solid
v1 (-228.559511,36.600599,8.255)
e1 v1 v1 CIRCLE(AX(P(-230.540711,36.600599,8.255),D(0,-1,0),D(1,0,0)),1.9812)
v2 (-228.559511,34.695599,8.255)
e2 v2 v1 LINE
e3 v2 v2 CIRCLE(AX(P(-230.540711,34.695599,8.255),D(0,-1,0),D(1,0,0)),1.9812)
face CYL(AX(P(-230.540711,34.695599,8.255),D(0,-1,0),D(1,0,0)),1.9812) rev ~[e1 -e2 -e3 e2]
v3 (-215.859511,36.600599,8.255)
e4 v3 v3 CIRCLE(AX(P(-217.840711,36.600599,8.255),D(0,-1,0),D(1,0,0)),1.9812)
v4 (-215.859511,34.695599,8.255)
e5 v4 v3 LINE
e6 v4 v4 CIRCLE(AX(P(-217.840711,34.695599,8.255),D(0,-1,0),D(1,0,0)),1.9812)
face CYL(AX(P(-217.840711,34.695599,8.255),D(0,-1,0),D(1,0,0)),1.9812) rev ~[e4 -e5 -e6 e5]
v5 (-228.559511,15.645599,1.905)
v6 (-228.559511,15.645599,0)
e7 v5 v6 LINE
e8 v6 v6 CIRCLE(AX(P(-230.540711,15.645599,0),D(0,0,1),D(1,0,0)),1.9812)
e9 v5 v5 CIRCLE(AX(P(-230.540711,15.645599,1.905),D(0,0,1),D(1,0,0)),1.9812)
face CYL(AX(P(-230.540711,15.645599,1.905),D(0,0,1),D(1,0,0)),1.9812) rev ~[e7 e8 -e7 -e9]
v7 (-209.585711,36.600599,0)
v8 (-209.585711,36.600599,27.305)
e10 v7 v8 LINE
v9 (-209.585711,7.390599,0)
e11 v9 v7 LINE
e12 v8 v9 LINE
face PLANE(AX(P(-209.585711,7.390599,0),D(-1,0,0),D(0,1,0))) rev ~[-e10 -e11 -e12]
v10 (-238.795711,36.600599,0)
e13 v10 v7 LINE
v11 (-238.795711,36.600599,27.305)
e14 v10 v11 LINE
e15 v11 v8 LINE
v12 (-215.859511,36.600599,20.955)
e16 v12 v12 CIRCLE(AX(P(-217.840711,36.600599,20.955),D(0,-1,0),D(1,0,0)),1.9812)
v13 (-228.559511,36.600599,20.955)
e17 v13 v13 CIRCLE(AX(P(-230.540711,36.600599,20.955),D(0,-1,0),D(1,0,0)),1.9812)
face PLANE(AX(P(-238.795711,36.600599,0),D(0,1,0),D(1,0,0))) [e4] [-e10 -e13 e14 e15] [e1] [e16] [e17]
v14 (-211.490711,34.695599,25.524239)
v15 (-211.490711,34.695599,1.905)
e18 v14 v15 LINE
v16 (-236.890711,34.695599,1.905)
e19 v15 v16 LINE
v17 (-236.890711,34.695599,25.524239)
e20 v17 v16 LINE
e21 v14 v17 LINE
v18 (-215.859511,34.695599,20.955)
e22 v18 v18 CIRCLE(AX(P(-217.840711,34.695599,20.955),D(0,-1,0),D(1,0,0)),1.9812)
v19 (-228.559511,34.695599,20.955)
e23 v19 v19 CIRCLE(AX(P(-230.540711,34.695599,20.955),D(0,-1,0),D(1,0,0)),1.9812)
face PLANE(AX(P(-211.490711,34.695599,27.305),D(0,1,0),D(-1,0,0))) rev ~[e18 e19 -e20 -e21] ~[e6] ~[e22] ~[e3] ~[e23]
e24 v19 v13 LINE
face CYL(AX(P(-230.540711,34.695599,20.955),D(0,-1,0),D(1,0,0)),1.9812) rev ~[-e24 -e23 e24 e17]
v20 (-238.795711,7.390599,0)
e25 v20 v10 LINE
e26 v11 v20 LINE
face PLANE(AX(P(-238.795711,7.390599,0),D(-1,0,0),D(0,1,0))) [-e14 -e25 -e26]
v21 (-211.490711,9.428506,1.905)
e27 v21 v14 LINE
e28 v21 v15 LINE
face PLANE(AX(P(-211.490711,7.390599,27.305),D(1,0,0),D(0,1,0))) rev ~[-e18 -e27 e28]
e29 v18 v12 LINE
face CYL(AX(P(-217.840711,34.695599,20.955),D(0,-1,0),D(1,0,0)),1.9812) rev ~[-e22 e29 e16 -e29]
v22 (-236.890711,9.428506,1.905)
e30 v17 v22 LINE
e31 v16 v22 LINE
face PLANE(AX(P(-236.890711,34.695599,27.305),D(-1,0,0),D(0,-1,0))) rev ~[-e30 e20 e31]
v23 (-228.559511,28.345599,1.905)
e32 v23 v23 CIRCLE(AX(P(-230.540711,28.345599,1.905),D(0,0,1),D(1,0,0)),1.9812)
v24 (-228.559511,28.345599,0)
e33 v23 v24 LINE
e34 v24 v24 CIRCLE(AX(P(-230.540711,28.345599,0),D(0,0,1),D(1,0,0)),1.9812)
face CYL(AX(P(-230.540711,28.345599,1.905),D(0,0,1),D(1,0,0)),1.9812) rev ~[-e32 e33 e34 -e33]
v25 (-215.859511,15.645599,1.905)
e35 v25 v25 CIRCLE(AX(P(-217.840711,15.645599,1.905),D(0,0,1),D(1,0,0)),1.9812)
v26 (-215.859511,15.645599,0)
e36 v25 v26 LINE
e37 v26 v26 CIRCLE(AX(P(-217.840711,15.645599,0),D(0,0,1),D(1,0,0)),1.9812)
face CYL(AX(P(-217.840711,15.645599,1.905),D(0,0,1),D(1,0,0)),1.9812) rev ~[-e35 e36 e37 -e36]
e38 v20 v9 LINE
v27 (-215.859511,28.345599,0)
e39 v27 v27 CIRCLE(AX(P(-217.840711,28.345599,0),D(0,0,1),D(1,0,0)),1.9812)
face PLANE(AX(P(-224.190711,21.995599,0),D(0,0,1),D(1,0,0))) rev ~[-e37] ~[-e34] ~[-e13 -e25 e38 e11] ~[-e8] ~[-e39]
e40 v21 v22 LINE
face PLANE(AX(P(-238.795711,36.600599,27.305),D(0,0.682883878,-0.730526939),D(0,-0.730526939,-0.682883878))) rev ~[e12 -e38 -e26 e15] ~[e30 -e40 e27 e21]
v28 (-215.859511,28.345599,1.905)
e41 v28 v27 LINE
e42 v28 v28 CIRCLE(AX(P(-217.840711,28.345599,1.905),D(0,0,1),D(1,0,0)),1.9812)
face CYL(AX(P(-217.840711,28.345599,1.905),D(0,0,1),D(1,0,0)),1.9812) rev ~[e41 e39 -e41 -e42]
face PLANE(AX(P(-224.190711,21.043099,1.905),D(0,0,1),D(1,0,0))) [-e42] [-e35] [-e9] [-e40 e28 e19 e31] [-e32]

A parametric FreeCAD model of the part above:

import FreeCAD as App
import Part
import Sketcher
Q = App.Units.Quantity

doc = App.newDocument("Part")
params = doc.addObject("Spreadsheet::Sheet", "Params")
for row, (alias, value) in enumerate([
    ("sketch1_width", "1.15 in"),
    ("pad1_length", "1.075 in"),
    ("sketch2_width", "1 in"),
    ("sketch2_height", "1.075 in"),
    ("pocket1_length", "1 in"),
    ("sketch3_width", "1.15 in"),
    ("sketch3_height", "1.075 in"),
    ("pocket2_length", "1.15 in"),
    ("sketch4_diameter", "0.156 in"),
    ("pocket3_length", "1 in"),
    ("sketch5_diameter", "0.156 in"),
    ("pocket4_length", "1 in"),
], start=1):
    params.set(f"A{row}", alias)
    params.set(f"B{row}", "=" + value)
    params.setAlias(f"B{row}", alias)

body = doc.addObject("PartDesign::Body", "Body")

# Sketch on XY plane
sketch1 = body.newObject("Sketcher::SketchObject", "Sketch")
sketch1.AttachmentSupport = (doc.getObject("XY_Plane"), [""])
sketch1.MapMode = "FlatFace"
sketch1.addGeometry(Part.LineSegment(App.Vector(-239, 37, 0), App.Vector(-239, 7, 0)), False)
sketch1.addGeometry(Part.LineSegment(App.Vector(-239, 7, 0), App.Vector(-210, 7, 0)), False)
sketch1.addGeometry(Part.LineSegment(App.Vector(-210, 7, 0), App.Vector(-210, 37, 0)), False)
sketch1.addGeometry(Part.LineSegment(App.Vector(-210, 37, 0), App.Vector(-239, 37, 0)), False)
sketch1.addConstraint(Sketcher.Constraint("Coincident", 0, 2, 1, 1))
sketch1.addConstraint(Sketcher.Constraint("Coincident", 1, 2, 2, 1))
sketch1.addConstraint(Sketcher.Constraint("Coincident", 2, 2, 3, 1))
sketch1.addConstraint(Sketcher.Constraint("Coincident", 3, 2, 0, 1))
sketch1.addConstraint(Sketcher.Constraint("Vertical", 0))
sketch1.addConstraint(Sketcher.Constraint("Horizontal", 1))
sketch1.addConstraint(Sketcher.Constraint("Vertical", 2))
sketch1.addConstraint(Sketcher.Constraint("Horizontal", 3))
sketch1.addConstraint(Sketcher.Constraint("Equal", 3, 0))
sketch1.addConstraint(Sketcher.Constraint("DistanceX", 1, 1, 1, 2, Q("1.15 in")))
sketch1.addConstraint(Sketcher.Constraint("DistanceY", -1, 1, 0, 2, 7.390599))
sketch1.addConstraint(Sketcher.Constraint("DistanceX", 0, 2, -1, 1, 238.795711))
sketch1.setExpression("Constraints[9]", "Params.sketch1_width")
pad1 = body.newObject("PartDesign::Pad", "Pad")
pad1.Profile = sketch1
pad1.setExpression("Length", "Params.pad1_length")

# Sketch on XY plane
sketch2 = body.newObject("Sketcher::SketchObject", "Sketch001")
sketch2.AttachmentSupport = (doc.getObject("XY_Plane"), [""])
sketch2.MapMode = "FlatFace"
sketch2.AttachmentOffset = App.Placement(App.Vector(0, 0, 1.075 * 25.4), App.Rotation())
sketch2.addGeometry(Part.LineSegment(App.Vector(-237, 35, 0), App.Vector(-237, 7, 0)), False)
sketch2.addGeometry(Part.LineSegment(App.Vector(-237, 7, 0), App.Vector(-211, 7, 0)), False)
sketch2.addGeometry(Part.LineSegment(App.Vector(-211, 7, 0), App.Vector(-211, 35, 0)), False)
sketch2.addGeometry(Part.LineSegment(App.Vector(-211, 35, 0), App.Vector(-237, 35, 0)), False)
sketch2.addConstraint(Sketcher.Constraint("Coincident", 0, 2, 1, 1))
sketch2.addConstraint(Sketcher.Constraint("Coincident", 1, 2, 2, 1))
sketch2.addConstraint(Sketcher.Constraint("Coincident", 2, 2, 3, 1))
sketch2.addConstraint(Sketcher.Constraint("Coincident", 3, 2, 0, 1))
sketch2.addConstraint(Sketcher.Constraint("Vertical", 0))
sketch2.addConstraint(Sketcher.Constraint("Horizontal", 1))
sketch2.addConstraint(Sketcher.Constraint("Vertical", 2))
sketch2.addConstraint(Sketcher.Constraint("Horizontal", 3))
sketch2.addConstraint(Sketcher.Constraint("DistanceX", 1, 1, 1, 2, Q("1 in")))
sketch2.addConstraint(Sketcher.Constraint("DistanceY", 0, 2, 0, 1, Q("1.075 in")))
sketch2.addConstraint(Sketcher.Constraint("DistanceY", -1, 1, 0, 2, 7.390599))
sketch2.addConstraint(Sketcher.Constraint("DistanceX", 0, 2, -1, 1, 236.890711))
sketch2.setExpression("Constraints[8]", "Params.sketch2_width")
sketch2.setExpression("Constraints[9]", "Params.sketch2_height")
pocket1 = body.newObject("PartDesign::Pocket", "Pocket")
pocket1.Profile = sketch2
pocket1.setExpression("Length", "Params.pocket1_length")

# Sketch on YZ plane
sketch3 = body.newObject("Sketcher::SketchObject", "Sketch002")
sketch3.AttachmentSupport = (doc.getObject("YZ_Plane"), [""])
sketch3.MapMode = "FlatFace"
sketch3.AttachmentOffset = App.Placement(App.Vector(0, 0, -238.795711), App.Rotation())
sketch3.addGeometry(Part.LineSegment(App.Vector(7, 27, 0), App.Vector(37, 27, 0)), False)
sketch3.addGeometry(Part.LineSegment(App.Vector(37, 27, 0), App.Vector(7, 0, 0)), False)
sketch3.addGeometry(Part.LineSegment(App.Vector(7, 0, 0), App.Vector(7, 27, 0)), False)
sketch3.addConstraint(Sketcher.Constraint("Coincident", 0, 2, 1, 1))
sketch3.addConstraint(Sketcher.Constraint("Coincident", 1, 2, 2, 1))
sketch3.addConstraint(Sketcher.Constraint("Coincident", 2, 2, 0, 1))
sketch3.addConstraint(Sketcher.Constraint("Horizontal", 0))
sketch3.addConstraint(Sketcher.Constraint("Vertical", 2))
sketch3.addConstraint(Sketcher.Constraint("PointOnObject", 1, 2, -1))
sketch3.addConstraint(Sketcher.Constraint("DistanceX", 0, 1, 0, 2, Q("1.15 in")))
sketch3.addConstraint(Sketcher.Constraint("DistanceY", 2, 1, 2, 2, Q("1.075 in")))
sketch3.addConstraint(Sketcher.Constraint("DistanceX", -1, 1, 0, 2, 36.600599))
sketch3.setExpression("Constraints[6]", "Params.sketch3_width")
sketch3.setExpression("Constraints[7]", "Params.sketch3_height")
pocket2 = body.newObject("PartDesign::Pocket", "Pocket001")
pocket2.Profile = sketch3
pocket2.setExpression("Length", "Params.pocket2_length")
pocket2.Reversed = True

# Sketch on XY plane
sketch4 = body.newObject("Sketcher::SketchObject", "Sketch003")
sketch4.AttachmentSupport = (doc.getObject("XY_Plane"), [""])
sketch4.MapMode = "FlatFace"
sketch4.AttachmentOffset = App.Placement(App.Vector(0, 0, 0.075 * 25.4), App.Rotation())
sketch4.addGeometry(Part.Circle(App.Vector(-230.5, 28.3, 0), App.Vector(0, 0, 1), 2), False)
sketch4.addGeometry(Part.Circle(App.Vector(-217.8, 28.3, 0), App.Vector(0, 0, 1), 2), False)
sketch4.addGeometry(Part.Circle(App.Vector(-217.8, 15.6, 0), App.Vector(0, 0, 1), 2), False)
sketch4.addGeometry(Part.Circle(App.Vector(-230.5, 15.6, 0), App.Vector(0, 0, 1), 2), False)
sketch4.addConstraint(Sketcher.Constraint("Equal", 0, 1))
sketch4.addConstraint(Sketcher.Constraint("Equal", 1, 2))
sketch4.addConstraint(Sketcher.Constraint("Equal", 2, 3))
sketch4.addConstraint(Sketcher.Constraint("Horizontal", 0, 3, 1, 3))
sketch4.addConstraint(Sketcher.Constraint("Horizontal", 2, 3, 3, 3))
sketch4.addConstraint(Sketcher.Constraint("Vertical", 1, 3, 2, 3))
sketch4.addConstraint(Sketcher.Constraint("Vertical", 0, 3, 3, 3))
sketch4.addConstraint(Sketcher.Constraint("Diameter", 0, Q("0.156 in")))
sketch4.addConstraint(Sketcher.Constraint("DistanceX", 0, 3, 1, 3, Q("0.5 in")))
sketch4.addConstraint(Sketcher.Constraint("DistanceY", 2, 3, 1, 3, Q("0.5 in")))
sketch4.addConstraint(Sketcher.Constraint("DistanceY", -1, 1, 0, 3, 28.345599))
sketch4.addConstraint(Sketcher.Constraint("DistanceX", 0, 3, -1, 1, 230.540711))
sketch4.setExpression("Constraints[7]", "Params.sketch4_diameter")
pocket3 = body.newObject("PartDesign::Pocket", "Pocket002")
pocket3.Profile = sketch4
pocket3.setExpression("Length", "Params.pocket3_length")

# Sketch on XZ plane
sketch5 = body.newObject("Sketcher::SketchObject", "Sketch004")
sketch5.AttachmentSupport = (doc.getObject("XZ_Plane"), [""])
sketch5.MapMode = "FlatFace"
sketch5.AttachmentOffset = App.Placement(App.Vector(0, 0, -34.695599), App.Rotation())
sketch5.addGeometry(Part.Circle(App.Vector(-230.5, 8.3, 0), App.Vector(0, 0, 1), 2), False)
sketch5.addGeometry(Part.Circle(App.Vector(-230.5, 21, 0), App.Vector(0, 0, 1), 2), False)
sketch5.addGeometry(Part.Circle(App.Vector(-217.8, 21, 0), App.Vector(0, 0, 1), 2), False)
sketch5.addGeometry(Part.Circle(App.Vector(-217.8, 8.3, 0), App.Vector(0, 0, 1), 2), False)
sketch5.addConstraint(Sketcher.Constraint("Equal", 0, 1))
sketch5.addConstraint(Sketcher.Constraint("Equal", 1, 2))
sketch5.addConstraint(Sketcher.Constraint("Equal", 2, 3))
sketch5.addConstraint(Sketcher.Constraint("Horizontal", 1, 3, 2, 3))
sketch5.addConstraint(Sketcher.Constraint("Horizontal", 0, 3, 3, 3))
sketch5.addConstraint(Sketcher.Constraint("Vertical", 0, 3, 1, 3))
sketch5.addConstraint(Sketcher.Constraint("Vertical", 2, 3, 3, 3))
sketch5.addConstraint(Sketcher.Constraint("Diameter", 0, Q("0.156 in")))
sketch5.addConstraint(Sketcher.Constraint("DistanceY", 0, 3, 1, 3, Q("0.5 in")))
sketch5.addConstraint(Sketcher.Constraint("DistanceX", 1, 3, 2, 3, Q("0.5 in")))
sketch5.addConstraint(Sketcher.Constraint("DistanceY", -1, 1, 0, 3, Q("0.325 in")))
sketch5.addConstraint(Sketcher.Constraint("DistanceX", 0, 3, -1, 1, 230.540711))
sketch5.setExpression("Constraints[7]", "Params.sketch5_diameter")
pocket4 = body.newObject("PartDesign::Pocket", "Pocket003")
pocket4.Profile = sketch5
pocket4.setExpression("Length", "Params.pocket4_length")

doc.recompute()
